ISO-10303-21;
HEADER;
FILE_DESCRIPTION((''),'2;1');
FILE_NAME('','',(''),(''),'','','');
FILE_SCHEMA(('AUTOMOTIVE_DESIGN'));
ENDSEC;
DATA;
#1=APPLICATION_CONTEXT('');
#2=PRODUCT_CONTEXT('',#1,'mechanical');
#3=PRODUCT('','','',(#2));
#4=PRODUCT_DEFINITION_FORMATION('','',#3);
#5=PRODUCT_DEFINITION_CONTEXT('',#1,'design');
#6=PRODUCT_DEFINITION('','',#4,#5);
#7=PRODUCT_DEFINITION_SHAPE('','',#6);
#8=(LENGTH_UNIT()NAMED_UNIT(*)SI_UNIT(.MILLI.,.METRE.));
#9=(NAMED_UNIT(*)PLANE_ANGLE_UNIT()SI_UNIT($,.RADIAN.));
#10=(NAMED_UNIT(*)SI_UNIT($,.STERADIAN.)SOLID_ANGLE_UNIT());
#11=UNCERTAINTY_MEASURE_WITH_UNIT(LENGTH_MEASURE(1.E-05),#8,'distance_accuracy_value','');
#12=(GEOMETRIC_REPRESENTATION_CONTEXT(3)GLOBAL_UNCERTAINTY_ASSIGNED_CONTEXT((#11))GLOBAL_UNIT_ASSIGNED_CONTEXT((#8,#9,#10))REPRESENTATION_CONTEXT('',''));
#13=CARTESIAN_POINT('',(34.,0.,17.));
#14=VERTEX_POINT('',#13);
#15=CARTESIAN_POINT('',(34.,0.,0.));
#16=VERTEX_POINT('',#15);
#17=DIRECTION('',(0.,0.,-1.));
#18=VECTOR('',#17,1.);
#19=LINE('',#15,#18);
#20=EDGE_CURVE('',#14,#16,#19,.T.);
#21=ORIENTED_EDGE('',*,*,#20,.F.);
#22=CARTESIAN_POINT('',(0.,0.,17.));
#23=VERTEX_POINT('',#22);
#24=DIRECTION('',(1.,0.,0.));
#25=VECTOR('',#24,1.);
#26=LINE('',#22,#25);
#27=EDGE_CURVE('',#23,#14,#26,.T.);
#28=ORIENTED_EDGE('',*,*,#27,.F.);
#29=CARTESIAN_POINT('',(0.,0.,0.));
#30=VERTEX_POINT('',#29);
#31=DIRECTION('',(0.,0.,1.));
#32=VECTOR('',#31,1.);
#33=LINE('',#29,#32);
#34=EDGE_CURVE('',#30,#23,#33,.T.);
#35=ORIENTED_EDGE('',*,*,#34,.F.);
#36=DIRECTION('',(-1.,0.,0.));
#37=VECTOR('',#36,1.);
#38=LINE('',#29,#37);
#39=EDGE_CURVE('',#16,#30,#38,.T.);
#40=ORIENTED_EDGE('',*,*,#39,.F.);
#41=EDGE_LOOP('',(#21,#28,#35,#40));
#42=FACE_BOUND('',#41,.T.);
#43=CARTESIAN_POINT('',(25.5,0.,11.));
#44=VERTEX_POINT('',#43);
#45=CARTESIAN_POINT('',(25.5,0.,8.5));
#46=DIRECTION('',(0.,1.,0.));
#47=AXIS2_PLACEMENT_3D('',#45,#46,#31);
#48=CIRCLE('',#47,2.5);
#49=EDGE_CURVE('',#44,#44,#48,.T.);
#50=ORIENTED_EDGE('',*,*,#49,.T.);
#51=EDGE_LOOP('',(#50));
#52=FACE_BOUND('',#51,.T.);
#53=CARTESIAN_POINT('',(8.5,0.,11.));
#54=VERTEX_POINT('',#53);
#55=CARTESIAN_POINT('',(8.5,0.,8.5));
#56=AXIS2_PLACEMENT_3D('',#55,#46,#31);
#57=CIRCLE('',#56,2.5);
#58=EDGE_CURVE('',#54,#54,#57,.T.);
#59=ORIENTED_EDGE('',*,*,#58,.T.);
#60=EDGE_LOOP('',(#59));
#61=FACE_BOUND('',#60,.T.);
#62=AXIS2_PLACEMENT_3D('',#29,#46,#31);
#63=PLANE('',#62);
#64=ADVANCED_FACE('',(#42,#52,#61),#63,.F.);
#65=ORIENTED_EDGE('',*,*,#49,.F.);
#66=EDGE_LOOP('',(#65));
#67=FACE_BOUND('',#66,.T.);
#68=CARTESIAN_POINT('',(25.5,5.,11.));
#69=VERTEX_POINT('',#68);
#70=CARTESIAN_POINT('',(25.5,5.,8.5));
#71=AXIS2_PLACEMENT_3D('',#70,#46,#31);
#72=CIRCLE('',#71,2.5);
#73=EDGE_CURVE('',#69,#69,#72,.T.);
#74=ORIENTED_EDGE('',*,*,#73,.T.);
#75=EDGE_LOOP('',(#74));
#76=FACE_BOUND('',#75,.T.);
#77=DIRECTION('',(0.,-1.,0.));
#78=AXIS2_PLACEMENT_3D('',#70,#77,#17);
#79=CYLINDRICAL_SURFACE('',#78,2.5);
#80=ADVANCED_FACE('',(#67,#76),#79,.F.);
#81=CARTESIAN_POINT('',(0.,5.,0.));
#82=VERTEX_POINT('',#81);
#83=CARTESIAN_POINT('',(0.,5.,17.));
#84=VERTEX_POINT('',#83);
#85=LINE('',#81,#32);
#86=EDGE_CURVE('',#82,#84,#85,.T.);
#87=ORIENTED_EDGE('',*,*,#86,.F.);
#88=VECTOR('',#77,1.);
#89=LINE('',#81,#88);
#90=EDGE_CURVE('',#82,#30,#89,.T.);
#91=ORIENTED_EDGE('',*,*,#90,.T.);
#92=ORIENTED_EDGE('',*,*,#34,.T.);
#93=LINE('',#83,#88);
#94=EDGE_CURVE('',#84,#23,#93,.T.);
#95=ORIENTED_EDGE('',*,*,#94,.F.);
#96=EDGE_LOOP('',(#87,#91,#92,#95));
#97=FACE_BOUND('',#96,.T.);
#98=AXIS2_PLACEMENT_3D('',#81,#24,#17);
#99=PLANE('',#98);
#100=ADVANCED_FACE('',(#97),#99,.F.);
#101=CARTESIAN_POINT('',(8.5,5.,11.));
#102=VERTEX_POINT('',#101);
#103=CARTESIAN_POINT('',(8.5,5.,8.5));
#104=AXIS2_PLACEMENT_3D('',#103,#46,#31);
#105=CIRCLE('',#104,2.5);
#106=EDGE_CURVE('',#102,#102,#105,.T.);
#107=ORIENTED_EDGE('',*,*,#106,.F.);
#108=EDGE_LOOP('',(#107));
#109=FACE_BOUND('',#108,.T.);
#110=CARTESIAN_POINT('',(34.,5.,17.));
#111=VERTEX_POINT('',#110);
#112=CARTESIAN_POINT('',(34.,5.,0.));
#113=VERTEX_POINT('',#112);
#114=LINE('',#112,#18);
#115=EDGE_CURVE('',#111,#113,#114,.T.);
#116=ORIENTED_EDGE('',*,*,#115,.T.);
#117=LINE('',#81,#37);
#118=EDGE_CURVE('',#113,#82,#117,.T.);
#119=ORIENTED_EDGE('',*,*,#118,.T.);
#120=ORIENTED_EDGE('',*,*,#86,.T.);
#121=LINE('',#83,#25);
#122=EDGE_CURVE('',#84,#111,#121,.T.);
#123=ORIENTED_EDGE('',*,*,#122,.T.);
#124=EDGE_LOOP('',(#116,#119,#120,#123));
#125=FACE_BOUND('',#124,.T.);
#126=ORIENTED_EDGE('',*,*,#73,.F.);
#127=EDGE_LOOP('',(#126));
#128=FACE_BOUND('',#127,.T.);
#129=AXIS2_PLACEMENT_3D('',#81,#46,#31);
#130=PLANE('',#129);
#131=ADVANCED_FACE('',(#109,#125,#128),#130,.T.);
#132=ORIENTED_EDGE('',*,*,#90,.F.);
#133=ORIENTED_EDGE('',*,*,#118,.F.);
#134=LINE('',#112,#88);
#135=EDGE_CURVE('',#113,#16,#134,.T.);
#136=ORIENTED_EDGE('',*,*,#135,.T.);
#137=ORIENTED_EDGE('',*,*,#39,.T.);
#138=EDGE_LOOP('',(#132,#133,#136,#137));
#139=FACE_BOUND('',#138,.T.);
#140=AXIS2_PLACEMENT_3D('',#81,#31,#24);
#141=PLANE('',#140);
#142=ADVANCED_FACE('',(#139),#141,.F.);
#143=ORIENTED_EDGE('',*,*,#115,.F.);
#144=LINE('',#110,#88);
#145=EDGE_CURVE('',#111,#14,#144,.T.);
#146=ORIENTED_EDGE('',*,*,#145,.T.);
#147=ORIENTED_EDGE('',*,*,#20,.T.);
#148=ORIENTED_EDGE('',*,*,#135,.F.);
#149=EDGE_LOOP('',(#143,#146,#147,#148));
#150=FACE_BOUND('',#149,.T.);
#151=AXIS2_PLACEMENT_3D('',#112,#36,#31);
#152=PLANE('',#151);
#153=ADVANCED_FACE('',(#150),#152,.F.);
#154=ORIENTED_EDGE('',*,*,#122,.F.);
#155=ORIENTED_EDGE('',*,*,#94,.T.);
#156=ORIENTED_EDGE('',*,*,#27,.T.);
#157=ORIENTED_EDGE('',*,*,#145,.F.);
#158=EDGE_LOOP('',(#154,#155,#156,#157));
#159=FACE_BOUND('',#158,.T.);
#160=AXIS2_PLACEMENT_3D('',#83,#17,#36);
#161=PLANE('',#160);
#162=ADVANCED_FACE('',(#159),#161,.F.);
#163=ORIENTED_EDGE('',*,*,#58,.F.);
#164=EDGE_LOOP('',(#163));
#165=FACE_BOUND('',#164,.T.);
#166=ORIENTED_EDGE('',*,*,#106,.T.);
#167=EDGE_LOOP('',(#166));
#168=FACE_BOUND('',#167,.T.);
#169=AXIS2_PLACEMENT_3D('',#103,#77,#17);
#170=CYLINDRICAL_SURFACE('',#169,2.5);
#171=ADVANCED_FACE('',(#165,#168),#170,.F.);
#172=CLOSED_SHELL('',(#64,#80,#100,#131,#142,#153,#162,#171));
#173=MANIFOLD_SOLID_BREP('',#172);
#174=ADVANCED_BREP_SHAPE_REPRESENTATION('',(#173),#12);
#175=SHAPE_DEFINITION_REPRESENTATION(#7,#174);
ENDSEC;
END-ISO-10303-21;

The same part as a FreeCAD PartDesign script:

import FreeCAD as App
import Part
import Sketcher

V = App.Vector
Q = App.Units.Quantity

doc = App.newDocument("Part")
params = doc.addObject("Spreadsheet::Sheet", "Params")
for row, (alias, value) in enumerate([
    ("sketch1_diameter", "5 mm"),
    ("sketch1_width", "34 mm"),
    ("sketch1_height", "17 mm"),
    ("pad1_length", "5 mm"),
], start=1):
    params.set(f"A{row}", alias)
    params.set(f"B{row}", "=" + value)
    params.setAlias(f"B{row}", alias)

body = doc.addObject("PartDesign::Body", "Body")

# Sketch on XZ plane
sketch1 = body.newObject("Sketcher::SketchObject", "Sketch")
sketch1.AttachmentSupport = (doc.getObject("XZ_Plane"), [""])
sketch1.MapMode = "FlatFace"
sketch1.addGeometry(Part.LineSegment(V(0, 0, 0), V(0, 17, 0)), False)
sketch1.addGeometry(Part.LineSegment(V(0, 17, 0), V(34, 17, 0)), False)
sketch1.addGeometry(Part.LineSegment(V(34, 17, 0), V(34, 0, 0)), False)
sketch1.addGeometry(Part.LineSegment(V(34, 0, 0), V(0, 0, 0)), False)
sketch1.addGeometry(Part.Circle(V(8.5, 8.5, 0), V(0, 0, 1), 2.5), False)
sketch1.addGeometry(Part.Circle(V(25.5, 8.5, 0), V(0, 0, 1), 2.5), False)
sketch1.addConstraint(Sketcher.Constraint("Coincident", 0, 2, 1, 1))
sketch1.addConstraint(Sketcher.Constraint("Coincident", 1, 2, 2, 1))
sketch1.addConstraint(Sketcher.Constraint("Coincident", 2, 2, 3, 1))
sketch1.addConstraint(Sketcher.Constraint("Coincident", 3, 2, 0, 1))
sketch1.addConstraint(Sketcher.Constraint("Vertical", 0))
sketch1.addConstraint(Sketcher.Constraint("Horizontal", 1))
sketch1.addConstraint(Sketcher.Constraint("Vertical", 2))
sketch1.addConstraint(Sketcher.Constraint("Horizontal", 3))
sketch1.addConstraint(Sketcher.Constraint("Coincident", 3, 2, -1, 1))
sketch1.addConstraint(Sketcher.Constraint("Equal", 4, 5))
sketch1.addConstraint(Sketcher.Constraint("Horizontal", 4, 3, 5, 3))
sketch1.addConstraint(Sketcher.Constraint("Diameter", 4, Q("5 mm")))
sketch1.addConstraint(Sketcher.Constraint("DistanceX", 1, 1, 1, 2, Q("34 mm")))
sketch1.addConstraint(Sketcher.Constraint("DistanceY", 0, 1, 0, 2, Q("17 mm")))
sketch1.addConstraint(Sketcher.Constraint("DistanceX", 4, 3, 5, 3, Q("17 mm")))
sketch1.addConstraint(Sketcher.Constraint("DistanceX", -1, 1, 4, 3, Q("8.5 mm")))
sketch1.addConstraint(Sketcher.Constraint("DistanceY", -1, 1, 4, 3, Q("8.5 mm")))
sketch1.setExpression("Constraints[11]", "Params.sketch1_diameter")
sketch1.setExpression("Constraints[12]", "Params.sketch1_width")
sketch1.setExpression("Constraints[13]", "Params.sketch1_height")
pad1 = body.newObject("PartDesign::Pad", "Pad")
pad1.Profile = sketch1
pad1.setExpression("Length", "Params.pad1_length")
pad1.Reversed = True

doc.recompute()
